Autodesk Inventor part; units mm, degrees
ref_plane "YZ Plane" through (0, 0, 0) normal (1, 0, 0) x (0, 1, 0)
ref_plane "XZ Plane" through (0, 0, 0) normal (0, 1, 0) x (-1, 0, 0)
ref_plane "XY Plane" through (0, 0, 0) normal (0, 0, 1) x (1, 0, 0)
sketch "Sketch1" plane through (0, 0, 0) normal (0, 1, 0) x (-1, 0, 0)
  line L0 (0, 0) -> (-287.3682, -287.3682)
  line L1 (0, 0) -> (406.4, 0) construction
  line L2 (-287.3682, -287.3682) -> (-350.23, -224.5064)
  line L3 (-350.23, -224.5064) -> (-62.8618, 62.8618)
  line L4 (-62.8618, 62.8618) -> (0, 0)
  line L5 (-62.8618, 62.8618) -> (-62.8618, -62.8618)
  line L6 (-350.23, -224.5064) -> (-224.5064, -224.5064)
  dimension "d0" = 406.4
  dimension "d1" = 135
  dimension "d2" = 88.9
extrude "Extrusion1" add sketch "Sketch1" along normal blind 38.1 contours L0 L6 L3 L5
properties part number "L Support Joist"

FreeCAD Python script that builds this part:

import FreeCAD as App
import Part
import Sketcher
Q = App.Units.Quantity


def add_polygon(sketch, points):
    """Adds a closed chain of lines whose ends are joined by coincident constraints."""
    first, n = sketch.GeometryCount, len(points)
    for a, b in zip(points, points[1:] + points[:1]):
        sketch.addGeometry(Part.LineSegment(App.Vector(*a, 0), App.Vector(*b, 0)), False)
    for i in range(n):
        sketch.addConstraint(Sketcher.Constraint("Coincident", first + i, 2, first + (i + 1) % n, 1))

doc = App.newDocument("Part")
body = doc.addObject("PartDesign::Body", "Body")

sketch1 = doc.addObject("Sketcher::SketchObject", "Sketch")
body.addObject(sketch1)
sketch1.AttachmentSupport = (doc.XZ_Plane, [""])
sketch1.MapMode = "FlatFace"
add_polygon(sketch1, [(225, -225), (63, -63), (63, 63), (350, -225)])
sketch1.addConstraint([
    Sketcher.Constraint("Vertical", 1),
    Sketcher.Constraint("Horizontal", 3),
    Sketcher.Constraint("Parallel", 0, 2),
    Sketcher.Constraint("Equal", 3, 1),
    Sketcher.Constraint("Distance", 2, Q("16 in")),
    Sketcher.Constraint("Distance", 0, Q("9 in")),
    Sketcher.Constraint("DistanceX", -1, 1, 0, 2, 62.8618),
    Sketcher.Constraint("DistanceY", 0, 2, -1, 1, 62.8618),
])
pad1 = doc.addObject("PartDesign::Pad", "Pad")
body.addObject(pad1)
pad1.Profile = sketch1
pad1.Length = Q("1.5 in")
pad1.Reversed = True

doc.recompute()
